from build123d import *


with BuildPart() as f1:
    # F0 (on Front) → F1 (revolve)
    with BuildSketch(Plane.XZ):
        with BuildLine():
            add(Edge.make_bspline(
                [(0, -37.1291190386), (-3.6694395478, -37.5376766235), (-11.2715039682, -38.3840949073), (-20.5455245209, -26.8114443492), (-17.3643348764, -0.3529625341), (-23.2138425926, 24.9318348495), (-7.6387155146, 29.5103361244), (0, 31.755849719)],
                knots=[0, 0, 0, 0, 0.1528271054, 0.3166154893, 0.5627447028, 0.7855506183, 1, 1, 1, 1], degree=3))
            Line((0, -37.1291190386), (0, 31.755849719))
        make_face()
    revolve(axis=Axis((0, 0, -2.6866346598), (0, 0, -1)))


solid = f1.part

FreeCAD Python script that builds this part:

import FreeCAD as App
import Part
import Sketcher

doc = App.newDocument("Part")
body = doc.addObject("PartDesign::Body", "Body")

sketch1 = doc.addObject("Sketcher::SketchObject", "Sketch")
body.addObject(sketch1)
sketch1.AttachmentSupport = (doc.XZ_Plane, [""])
sketch1.MapMode = "FlatFace"
sketch1.addGeometry([
    Part.BSplineCurve([App.Vector(0, -37.129119, 0), App.Vector(-3.66944, -37.537677, 0), App.Vector(-11.271504, -38.384095, 0), App.Vector(-20.545525, -26.811444, 0), App.Vector(-17.364335, -0.352963, 0), App.Vector(-23.213843, 24.931835, 0), App.Vector(-7.638716, 29.510336, 0), App.Vector(0, 31.75585, 0)], [4, 1, 1, 1, 1, 4], [0, 0.152827105, 0.316615489, 0.562744703, 0.785550618, 1], False, 3, [1, 1, 1, 1, 1, 1, 1, 1], False),
    Part.LineSegment(App.Vector(0, -37.129119, 0), App.Vector(0, 31.75585, 0)),
], False)
sketch1.addConstraint([
    Sketcher.Constraint("Block", 0),
    Sketcher.Constraint("Coincident", 0, 1, 1, 1),
    Sketcher.Constraint("Coincident", 1, 2, 0, 2),
])
revolution = doc.addObject("PartDesign::Revolution", "Revolution")
body.addObject(revolution)
revolution.Profile = sketch1
revolution.ReferenceAxis = (sketch1, ["V_Axis"])
revolution.Angle = 360

doc.recompute()
